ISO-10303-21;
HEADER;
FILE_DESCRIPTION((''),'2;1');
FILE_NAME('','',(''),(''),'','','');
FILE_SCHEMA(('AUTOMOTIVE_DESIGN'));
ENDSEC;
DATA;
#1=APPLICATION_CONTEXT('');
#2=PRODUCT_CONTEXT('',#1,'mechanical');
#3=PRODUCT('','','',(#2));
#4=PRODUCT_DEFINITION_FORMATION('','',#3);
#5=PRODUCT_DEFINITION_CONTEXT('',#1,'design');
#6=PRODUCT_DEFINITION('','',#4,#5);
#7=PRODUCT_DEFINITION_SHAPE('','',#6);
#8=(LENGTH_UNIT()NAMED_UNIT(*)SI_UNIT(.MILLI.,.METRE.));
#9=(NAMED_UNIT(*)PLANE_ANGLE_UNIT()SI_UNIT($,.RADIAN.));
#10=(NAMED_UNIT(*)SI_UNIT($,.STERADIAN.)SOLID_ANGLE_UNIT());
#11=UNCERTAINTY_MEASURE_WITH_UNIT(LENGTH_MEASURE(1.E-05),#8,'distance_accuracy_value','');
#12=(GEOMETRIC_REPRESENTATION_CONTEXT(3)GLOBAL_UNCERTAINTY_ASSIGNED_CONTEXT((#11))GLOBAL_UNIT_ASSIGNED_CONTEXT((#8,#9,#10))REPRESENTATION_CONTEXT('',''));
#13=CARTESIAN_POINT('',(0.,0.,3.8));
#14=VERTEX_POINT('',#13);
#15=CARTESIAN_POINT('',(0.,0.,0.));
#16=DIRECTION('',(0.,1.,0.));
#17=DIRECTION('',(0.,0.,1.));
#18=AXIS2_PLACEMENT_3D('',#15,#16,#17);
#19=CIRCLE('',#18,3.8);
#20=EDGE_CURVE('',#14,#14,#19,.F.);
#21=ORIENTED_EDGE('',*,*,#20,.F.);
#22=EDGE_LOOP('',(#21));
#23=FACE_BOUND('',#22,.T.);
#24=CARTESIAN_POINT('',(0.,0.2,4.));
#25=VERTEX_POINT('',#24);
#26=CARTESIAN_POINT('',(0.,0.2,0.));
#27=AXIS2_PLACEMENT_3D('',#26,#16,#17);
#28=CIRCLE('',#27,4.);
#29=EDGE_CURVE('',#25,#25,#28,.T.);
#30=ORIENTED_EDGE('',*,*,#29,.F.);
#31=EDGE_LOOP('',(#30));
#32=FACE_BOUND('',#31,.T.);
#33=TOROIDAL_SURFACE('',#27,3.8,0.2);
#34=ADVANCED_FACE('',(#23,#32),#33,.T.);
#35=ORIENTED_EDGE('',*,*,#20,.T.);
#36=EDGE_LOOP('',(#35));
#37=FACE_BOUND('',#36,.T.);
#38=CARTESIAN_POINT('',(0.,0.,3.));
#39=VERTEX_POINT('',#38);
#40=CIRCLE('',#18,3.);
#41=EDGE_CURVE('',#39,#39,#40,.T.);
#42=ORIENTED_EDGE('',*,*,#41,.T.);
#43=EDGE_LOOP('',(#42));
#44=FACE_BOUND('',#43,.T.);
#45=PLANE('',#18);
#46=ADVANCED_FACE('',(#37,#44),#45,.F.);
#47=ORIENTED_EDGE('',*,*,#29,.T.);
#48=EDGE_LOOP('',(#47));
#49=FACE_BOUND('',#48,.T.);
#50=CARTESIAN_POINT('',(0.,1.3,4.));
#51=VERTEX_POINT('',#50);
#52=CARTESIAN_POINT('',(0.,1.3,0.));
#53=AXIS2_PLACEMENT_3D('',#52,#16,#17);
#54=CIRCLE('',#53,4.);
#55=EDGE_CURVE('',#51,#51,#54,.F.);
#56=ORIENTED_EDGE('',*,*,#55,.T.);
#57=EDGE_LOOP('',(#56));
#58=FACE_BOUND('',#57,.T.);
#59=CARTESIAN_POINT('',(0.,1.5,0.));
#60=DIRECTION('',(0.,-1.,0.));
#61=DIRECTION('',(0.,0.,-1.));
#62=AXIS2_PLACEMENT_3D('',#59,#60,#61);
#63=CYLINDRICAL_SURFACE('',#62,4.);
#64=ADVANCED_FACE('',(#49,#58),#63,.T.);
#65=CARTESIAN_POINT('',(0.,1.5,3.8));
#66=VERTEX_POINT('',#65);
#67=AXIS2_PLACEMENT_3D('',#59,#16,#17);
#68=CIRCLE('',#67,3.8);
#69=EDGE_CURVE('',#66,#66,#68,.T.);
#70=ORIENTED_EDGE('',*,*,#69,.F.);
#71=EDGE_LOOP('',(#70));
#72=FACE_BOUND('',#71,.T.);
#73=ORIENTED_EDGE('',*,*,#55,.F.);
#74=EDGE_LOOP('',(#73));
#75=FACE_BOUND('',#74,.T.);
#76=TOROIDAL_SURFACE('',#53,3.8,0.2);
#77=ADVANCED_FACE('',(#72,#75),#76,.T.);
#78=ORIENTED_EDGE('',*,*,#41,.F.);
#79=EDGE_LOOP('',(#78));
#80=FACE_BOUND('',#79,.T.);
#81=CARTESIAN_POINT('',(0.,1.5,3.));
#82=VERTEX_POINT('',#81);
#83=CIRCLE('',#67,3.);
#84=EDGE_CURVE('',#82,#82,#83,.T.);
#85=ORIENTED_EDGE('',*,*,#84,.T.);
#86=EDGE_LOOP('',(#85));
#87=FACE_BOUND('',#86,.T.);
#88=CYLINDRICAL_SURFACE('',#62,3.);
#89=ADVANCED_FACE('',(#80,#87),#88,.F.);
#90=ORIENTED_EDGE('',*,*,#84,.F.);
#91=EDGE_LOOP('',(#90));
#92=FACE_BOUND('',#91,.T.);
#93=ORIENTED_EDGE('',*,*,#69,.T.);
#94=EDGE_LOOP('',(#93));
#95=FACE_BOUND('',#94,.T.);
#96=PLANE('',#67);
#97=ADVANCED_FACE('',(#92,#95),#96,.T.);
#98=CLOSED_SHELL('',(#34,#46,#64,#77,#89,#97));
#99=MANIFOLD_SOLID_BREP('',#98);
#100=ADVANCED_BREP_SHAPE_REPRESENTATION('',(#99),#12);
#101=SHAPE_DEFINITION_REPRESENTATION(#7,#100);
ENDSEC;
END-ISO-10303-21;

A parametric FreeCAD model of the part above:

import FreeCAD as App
import Part
import Sketcher

V = App.Vector


def edges_at(feature, points):
    """Names of the edges that pass closest to the given points."""
    edges = feature.Shape.Edges
    near = lambda p: min(range(len(edges)), key=lambda i: edges[i].distToShape(Part.Vertex(*p))[0])
    return sorted({f"Edge{near(p) + 1}" for p in points})

doc = App.newDocument("Part")
body = doc.addObject("PartDesign::Body", "Body")

# Sketch on XZ plane
sketch1 = body.newObject("Sketcher::SketchObject", "Sketch")
sketch1.AttachmentSupport = (doc.getObject("XZ_Plane"), [""])
sketch1.MapMode = "FlatFace"
sketch1.addGeometry(Part.Circle(V(0, 0, 0), V(0, 0, 1), 4), False)
sketch1.addGeometry(Part.Circle(V(0, 0, 0), V(0, 0, 1), 3), False)
sketch1.addConstraint(Sketcher.Constraint("Coincident", 0, 3, -1, 1))
sketch1.addConstraint(Sketcher.Constraint("Coincident", 1, 3, -1, 1))
sketch1.addConstraint(Sketcher.Constraint("Diameter", 0, 8.0))
sketch1.addConstraint(Sketcher.Constraint("Diameter", 1, 6.0))
pad1 = body.newObject("PartDesign::Pad", "Pad")
pad1.Profile = sketch1
pad1.Length = 1.5
pad1.Reversed = True
doc.recompute()

fillet = body.newObject("PartDesign::Fillet", "Fillet")
fillet.Base = (pad1, edges_at(pad1, [(0, 0, -4), (0, 1.5, -4)]))
fillet.Radius = 0.2

doc.recompute()
